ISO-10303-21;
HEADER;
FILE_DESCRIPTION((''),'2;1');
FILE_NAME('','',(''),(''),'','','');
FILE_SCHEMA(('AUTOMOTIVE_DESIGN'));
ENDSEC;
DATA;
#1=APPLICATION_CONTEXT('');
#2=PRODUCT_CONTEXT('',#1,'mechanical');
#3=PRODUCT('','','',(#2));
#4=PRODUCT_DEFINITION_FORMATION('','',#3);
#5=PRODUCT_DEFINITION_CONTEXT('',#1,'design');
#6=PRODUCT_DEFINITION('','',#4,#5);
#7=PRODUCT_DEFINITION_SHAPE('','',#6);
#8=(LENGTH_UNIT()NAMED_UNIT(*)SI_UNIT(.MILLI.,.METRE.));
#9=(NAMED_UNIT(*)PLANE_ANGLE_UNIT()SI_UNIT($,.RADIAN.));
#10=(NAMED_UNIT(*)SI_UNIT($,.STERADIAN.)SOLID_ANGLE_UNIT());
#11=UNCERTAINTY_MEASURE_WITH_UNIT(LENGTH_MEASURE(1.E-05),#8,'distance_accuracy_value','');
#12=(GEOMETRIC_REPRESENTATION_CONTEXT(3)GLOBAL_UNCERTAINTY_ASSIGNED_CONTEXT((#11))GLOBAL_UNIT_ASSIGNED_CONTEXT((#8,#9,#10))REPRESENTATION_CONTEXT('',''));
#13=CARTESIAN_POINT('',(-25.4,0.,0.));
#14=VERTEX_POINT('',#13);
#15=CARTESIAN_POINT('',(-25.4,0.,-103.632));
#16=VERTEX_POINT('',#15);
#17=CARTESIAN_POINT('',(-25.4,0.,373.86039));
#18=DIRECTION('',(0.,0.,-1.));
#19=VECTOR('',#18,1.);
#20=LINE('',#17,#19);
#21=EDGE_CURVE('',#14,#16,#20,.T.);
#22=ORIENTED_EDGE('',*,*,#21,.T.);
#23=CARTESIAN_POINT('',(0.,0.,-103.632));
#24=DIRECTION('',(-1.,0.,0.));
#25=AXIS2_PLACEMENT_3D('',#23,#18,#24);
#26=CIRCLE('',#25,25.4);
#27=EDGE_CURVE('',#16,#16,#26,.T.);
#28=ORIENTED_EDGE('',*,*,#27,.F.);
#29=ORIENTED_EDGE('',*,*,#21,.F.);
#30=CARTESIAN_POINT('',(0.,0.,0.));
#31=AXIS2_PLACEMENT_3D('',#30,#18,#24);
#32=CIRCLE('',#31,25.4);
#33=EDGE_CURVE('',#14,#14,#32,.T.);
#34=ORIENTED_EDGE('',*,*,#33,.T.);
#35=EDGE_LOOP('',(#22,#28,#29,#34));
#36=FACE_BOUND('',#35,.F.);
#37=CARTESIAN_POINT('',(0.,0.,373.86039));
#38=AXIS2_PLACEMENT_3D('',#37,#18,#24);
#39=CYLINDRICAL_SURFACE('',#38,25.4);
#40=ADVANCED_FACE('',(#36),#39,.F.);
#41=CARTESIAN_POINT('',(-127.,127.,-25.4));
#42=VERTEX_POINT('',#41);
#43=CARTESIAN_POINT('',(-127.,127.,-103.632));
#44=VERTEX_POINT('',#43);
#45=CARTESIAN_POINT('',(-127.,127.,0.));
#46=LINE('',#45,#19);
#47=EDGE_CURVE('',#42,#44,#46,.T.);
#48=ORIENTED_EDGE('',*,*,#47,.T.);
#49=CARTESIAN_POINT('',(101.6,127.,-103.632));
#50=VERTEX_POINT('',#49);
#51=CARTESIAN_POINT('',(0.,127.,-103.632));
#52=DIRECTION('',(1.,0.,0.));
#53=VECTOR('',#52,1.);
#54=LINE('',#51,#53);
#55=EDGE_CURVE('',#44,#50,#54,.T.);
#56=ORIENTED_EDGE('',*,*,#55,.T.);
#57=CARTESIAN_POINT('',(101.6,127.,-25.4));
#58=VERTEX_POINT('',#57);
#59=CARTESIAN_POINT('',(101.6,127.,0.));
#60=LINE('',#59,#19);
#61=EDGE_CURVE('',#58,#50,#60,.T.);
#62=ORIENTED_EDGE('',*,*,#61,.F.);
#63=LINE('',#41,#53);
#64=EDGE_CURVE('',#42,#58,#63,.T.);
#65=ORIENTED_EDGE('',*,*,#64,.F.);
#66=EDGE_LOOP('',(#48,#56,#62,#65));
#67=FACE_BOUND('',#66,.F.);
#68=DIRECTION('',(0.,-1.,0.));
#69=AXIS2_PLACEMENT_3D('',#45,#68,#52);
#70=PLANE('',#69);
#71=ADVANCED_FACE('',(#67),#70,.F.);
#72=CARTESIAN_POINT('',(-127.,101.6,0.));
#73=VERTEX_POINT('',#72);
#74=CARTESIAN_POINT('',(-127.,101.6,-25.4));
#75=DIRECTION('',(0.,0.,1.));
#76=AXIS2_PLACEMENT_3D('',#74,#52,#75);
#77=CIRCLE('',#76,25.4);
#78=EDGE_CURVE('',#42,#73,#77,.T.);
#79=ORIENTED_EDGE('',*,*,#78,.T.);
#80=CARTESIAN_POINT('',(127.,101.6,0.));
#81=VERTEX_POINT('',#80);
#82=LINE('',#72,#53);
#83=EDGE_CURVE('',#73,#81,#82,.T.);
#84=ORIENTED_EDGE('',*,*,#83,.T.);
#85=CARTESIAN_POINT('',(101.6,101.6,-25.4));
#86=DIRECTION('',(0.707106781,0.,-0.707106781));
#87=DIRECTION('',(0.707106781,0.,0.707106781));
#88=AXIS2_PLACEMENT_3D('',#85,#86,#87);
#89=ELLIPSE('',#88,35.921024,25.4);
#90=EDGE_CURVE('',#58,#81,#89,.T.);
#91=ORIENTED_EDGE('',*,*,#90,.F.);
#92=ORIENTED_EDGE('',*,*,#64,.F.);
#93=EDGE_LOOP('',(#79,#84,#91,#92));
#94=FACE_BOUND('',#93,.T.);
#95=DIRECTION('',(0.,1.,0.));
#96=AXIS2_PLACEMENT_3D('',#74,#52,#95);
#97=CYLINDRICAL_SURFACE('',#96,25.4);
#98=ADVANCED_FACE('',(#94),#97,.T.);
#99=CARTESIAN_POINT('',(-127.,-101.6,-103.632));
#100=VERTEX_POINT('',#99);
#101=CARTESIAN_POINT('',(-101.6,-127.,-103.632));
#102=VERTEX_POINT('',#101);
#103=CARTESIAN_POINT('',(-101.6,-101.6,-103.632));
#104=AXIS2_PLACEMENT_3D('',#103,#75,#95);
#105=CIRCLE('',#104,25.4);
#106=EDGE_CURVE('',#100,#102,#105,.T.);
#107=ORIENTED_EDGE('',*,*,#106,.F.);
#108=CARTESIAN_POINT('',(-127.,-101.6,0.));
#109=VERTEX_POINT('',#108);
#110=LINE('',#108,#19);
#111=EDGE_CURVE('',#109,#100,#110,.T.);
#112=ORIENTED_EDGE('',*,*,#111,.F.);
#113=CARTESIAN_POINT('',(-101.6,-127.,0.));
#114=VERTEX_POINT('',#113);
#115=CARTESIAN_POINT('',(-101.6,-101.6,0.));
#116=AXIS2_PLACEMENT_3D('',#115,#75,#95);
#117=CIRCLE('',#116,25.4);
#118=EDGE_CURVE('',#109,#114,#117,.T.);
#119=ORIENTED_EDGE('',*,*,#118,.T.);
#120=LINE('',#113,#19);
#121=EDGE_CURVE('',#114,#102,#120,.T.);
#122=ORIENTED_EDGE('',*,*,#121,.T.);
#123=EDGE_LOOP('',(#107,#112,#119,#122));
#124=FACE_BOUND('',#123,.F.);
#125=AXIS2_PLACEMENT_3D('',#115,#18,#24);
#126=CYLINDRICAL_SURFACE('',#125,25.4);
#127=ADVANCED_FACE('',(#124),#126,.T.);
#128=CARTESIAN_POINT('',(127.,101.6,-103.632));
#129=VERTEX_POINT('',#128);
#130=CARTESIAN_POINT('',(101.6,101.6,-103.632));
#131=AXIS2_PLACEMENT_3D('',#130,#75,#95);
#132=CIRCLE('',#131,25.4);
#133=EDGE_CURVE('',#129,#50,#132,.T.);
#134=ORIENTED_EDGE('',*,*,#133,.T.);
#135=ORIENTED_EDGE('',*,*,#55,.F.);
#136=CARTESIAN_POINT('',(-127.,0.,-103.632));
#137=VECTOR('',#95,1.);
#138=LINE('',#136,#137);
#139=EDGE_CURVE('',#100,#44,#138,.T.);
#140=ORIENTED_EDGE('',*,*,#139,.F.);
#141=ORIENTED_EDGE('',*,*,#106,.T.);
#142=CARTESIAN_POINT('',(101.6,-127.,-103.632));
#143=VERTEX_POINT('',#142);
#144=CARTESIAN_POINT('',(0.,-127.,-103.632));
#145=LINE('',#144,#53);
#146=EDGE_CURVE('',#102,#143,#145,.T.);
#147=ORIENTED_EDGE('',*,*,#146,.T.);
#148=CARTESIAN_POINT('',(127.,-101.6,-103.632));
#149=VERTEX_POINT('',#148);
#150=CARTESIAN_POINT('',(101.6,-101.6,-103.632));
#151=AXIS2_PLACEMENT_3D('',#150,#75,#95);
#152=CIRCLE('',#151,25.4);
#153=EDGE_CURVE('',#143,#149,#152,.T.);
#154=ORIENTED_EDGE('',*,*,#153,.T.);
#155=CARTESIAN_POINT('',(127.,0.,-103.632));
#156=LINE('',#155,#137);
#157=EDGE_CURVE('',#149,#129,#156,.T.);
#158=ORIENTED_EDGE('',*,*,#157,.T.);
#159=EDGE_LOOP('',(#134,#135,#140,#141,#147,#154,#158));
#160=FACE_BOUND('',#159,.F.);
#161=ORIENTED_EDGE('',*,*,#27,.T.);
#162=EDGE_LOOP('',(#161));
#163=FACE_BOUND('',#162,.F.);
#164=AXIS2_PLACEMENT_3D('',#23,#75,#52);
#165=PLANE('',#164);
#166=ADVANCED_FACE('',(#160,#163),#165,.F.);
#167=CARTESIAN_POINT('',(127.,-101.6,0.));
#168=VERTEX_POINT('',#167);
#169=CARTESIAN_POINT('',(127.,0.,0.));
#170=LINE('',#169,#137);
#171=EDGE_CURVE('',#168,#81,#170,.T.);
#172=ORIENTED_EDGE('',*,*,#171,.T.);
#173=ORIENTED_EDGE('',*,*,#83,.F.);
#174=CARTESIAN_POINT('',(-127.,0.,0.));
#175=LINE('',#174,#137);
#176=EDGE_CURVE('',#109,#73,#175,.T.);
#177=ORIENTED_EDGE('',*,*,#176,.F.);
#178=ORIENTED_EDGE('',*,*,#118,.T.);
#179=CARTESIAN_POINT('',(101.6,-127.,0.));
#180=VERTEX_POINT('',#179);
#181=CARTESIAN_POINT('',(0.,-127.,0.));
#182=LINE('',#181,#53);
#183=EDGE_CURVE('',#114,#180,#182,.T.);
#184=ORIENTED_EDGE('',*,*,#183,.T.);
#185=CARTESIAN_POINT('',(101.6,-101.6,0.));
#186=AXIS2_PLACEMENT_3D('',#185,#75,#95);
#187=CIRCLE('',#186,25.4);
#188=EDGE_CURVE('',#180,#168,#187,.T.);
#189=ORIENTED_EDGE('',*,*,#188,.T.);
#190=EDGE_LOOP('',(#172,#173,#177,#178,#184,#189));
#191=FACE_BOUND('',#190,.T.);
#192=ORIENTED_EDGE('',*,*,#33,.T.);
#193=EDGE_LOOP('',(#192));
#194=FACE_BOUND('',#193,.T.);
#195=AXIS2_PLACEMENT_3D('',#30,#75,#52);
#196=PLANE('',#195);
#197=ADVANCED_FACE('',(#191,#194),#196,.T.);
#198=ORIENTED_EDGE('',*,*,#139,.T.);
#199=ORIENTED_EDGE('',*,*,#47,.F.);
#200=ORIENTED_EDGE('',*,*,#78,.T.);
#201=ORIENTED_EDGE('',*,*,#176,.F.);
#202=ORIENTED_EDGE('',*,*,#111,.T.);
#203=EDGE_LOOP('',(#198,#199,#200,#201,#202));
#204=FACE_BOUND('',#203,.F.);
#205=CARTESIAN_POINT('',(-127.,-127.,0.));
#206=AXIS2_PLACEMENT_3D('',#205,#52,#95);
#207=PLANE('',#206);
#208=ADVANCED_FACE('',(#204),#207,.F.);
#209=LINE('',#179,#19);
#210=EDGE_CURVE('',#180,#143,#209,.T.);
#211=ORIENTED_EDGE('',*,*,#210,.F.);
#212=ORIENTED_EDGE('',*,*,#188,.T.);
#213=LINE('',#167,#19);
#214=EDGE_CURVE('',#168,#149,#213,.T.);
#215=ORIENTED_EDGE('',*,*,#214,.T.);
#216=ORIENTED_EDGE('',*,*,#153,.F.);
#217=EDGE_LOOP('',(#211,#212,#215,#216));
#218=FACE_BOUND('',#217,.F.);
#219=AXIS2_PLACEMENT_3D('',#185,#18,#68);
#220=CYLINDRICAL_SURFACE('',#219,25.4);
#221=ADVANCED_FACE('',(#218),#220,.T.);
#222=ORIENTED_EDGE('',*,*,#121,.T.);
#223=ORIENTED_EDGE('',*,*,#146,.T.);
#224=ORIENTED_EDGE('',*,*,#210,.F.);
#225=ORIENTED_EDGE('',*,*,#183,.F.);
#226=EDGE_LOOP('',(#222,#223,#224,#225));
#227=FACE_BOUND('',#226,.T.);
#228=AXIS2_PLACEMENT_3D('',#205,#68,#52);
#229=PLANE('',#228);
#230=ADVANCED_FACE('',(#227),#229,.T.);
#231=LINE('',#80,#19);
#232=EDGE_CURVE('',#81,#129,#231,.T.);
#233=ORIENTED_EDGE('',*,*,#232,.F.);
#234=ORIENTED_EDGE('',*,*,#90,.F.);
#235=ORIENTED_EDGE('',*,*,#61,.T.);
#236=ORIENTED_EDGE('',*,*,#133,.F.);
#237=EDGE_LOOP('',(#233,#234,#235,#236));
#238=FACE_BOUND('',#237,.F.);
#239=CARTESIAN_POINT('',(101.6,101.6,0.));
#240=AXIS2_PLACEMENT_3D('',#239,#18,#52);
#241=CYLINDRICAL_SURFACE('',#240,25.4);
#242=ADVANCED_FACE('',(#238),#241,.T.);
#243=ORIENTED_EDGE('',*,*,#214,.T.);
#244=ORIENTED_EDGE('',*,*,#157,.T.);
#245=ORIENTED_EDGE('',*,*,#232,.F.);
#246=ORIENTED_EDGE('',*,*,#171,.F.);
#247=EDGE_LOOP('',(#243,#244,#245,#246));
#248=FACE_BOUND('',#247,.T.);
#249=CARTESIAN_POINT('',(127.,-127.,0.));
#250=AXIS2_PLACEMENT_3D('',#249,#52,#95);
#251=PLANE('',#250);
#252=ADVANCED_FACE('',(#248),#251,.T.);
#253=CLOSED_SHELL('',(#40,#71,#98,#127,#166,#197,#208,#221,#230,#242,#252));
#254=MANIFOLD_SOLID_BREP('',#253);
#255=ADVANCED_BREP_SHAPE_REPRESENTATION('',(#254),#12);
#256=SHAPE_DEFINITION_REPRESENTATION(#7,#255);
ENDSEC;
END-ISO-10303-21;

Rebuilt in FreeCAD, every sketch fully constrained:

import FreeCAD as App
import Part
import Sketcher
Q = App.Units.Quantity


def edges_at(feature, points):
    """Names of the edges that pass closest to the given points."""
    edges = feature.Shape.Edges
    near = lambda p: min(range(len(edges)), key=lambda i: edges[i].distToShape(Part.Vertex(*p))[0])
    return sorted({f"Edge{near(p) + 1}" for p in points})


def add_polygon(sketch, points):
    """Adds a closed chain of lines whose ends are joined by coincident constraints."""
    first, n = sketch.GeometryCount, len(points)
    for a, b in zip(points, points[1:] + points[:1]):
        sketch.addGeometry(Part.LineSegment(App.Vector(*a, 0), App.Vector(*b, 0)), False)
    for i in range(n):
        sketch.addConstraint(Sketcher.Constraint("Coincident", first + i, 2, first + (i + 1) % n, 1))

doc = App.newDocument("Part")
params = doc.addObject("Spreadsheet::Sheet", "Params")
for row, (alias, value) in enumerate([
    ("sketch1_width", "10 in"),
    ("pad1_length", "4.08 in"),
    ("fillet_radius", "1 in"),
    ("sketch2_diameter", "2 in"),
    ("hole_diameter", "2 in"),
], start=1):
    params.set(f"A{row}", alias)
    params.set(f"B{row}", "=" + value)
    params.setAlias(f"B{row}", alias)

body = doc.addObject("PartDesign::Body", "Body")

# Sketch on XY plane
sketch1 = body.newObject("Sketcher::SketchObject", "Sketch")
sketch1.AttachmentSupport = (doc.getObject("XY_Plane"), [""])
sketch1.MapMode = "FlatFace"
add_polygon(sketch1, [(-127, 127), (-127, -127), (127, -127), (127, 127)])  # lines 0-3
sketch1.addConstraint([
    Sketcher.Constraint("Vertical", 0),
    Sketcher.Constraint("Horizontal", 1),
    Sketcher.Constraint("Vertical", 2),
    Sketcher.Constraint("Horizontal", 3),
    Sketcher.Constraint("Symmetric", 0, 2, 2, 2, -1, 1),
    Sketcher.Constraint("Equal", 3, 0),
    Sketcher.Constraint("DistanceX", 1, 1, 1, 2, Q("10 in")),
])
sketch1.setExpression("Constraints[10]", "Params.sketch1_width")
pad1 = body.newObject("PartDesign::Pad", "Pad")
pad1.Profile = sketch1
pad1.setExpression("Length", "Params.pad1_length")
pad1.Reversed = True
doc.recompute()

fillet = body.newObject("PartDesign::Fillet", "Fillet")
fillet.Base = (pad1, edges_at(pad1, [
    (-127, -127, -51.816),
    (0, 127, 0),
    (127, 127, -51.816),
    (127, -127, -51.816),
]))
fillet.setExpression("Radius", "Params.fillet_radius")

# Sketch on XY plane
sketch2 = body.newObject("Sketcher::SketchObject", "Sketch001")
sketch2.AttachmentSupport = (doc.getObject("XY_Plane"), [""])
sketch2.MapMode = "FlatFace"
sketch2.addGeometry(Part.Circle(App.Vector(0, 0, 0), App.Vector(0, 0, 1), 25), False)
sketch2.addConstraint([
    Sketcher.Constraint("Coincident", 0, 3, -1, 1),
    Sketcher.Constraint("Diameter", 0, Q("2 in")),
])
sketch2.setExpression("Constraints[1]", "Params.sketch2_diameter")
doc.recompute()
hole = body.newObject("PartDesign::Hole", "Hole")
hole.Profile = sketch2
hole.ThreadType = "None"
hole.setExpression("Diameter", "Params.hole_diameter")
hole.DepthType = "ThroughAll"

doc.recompute()
